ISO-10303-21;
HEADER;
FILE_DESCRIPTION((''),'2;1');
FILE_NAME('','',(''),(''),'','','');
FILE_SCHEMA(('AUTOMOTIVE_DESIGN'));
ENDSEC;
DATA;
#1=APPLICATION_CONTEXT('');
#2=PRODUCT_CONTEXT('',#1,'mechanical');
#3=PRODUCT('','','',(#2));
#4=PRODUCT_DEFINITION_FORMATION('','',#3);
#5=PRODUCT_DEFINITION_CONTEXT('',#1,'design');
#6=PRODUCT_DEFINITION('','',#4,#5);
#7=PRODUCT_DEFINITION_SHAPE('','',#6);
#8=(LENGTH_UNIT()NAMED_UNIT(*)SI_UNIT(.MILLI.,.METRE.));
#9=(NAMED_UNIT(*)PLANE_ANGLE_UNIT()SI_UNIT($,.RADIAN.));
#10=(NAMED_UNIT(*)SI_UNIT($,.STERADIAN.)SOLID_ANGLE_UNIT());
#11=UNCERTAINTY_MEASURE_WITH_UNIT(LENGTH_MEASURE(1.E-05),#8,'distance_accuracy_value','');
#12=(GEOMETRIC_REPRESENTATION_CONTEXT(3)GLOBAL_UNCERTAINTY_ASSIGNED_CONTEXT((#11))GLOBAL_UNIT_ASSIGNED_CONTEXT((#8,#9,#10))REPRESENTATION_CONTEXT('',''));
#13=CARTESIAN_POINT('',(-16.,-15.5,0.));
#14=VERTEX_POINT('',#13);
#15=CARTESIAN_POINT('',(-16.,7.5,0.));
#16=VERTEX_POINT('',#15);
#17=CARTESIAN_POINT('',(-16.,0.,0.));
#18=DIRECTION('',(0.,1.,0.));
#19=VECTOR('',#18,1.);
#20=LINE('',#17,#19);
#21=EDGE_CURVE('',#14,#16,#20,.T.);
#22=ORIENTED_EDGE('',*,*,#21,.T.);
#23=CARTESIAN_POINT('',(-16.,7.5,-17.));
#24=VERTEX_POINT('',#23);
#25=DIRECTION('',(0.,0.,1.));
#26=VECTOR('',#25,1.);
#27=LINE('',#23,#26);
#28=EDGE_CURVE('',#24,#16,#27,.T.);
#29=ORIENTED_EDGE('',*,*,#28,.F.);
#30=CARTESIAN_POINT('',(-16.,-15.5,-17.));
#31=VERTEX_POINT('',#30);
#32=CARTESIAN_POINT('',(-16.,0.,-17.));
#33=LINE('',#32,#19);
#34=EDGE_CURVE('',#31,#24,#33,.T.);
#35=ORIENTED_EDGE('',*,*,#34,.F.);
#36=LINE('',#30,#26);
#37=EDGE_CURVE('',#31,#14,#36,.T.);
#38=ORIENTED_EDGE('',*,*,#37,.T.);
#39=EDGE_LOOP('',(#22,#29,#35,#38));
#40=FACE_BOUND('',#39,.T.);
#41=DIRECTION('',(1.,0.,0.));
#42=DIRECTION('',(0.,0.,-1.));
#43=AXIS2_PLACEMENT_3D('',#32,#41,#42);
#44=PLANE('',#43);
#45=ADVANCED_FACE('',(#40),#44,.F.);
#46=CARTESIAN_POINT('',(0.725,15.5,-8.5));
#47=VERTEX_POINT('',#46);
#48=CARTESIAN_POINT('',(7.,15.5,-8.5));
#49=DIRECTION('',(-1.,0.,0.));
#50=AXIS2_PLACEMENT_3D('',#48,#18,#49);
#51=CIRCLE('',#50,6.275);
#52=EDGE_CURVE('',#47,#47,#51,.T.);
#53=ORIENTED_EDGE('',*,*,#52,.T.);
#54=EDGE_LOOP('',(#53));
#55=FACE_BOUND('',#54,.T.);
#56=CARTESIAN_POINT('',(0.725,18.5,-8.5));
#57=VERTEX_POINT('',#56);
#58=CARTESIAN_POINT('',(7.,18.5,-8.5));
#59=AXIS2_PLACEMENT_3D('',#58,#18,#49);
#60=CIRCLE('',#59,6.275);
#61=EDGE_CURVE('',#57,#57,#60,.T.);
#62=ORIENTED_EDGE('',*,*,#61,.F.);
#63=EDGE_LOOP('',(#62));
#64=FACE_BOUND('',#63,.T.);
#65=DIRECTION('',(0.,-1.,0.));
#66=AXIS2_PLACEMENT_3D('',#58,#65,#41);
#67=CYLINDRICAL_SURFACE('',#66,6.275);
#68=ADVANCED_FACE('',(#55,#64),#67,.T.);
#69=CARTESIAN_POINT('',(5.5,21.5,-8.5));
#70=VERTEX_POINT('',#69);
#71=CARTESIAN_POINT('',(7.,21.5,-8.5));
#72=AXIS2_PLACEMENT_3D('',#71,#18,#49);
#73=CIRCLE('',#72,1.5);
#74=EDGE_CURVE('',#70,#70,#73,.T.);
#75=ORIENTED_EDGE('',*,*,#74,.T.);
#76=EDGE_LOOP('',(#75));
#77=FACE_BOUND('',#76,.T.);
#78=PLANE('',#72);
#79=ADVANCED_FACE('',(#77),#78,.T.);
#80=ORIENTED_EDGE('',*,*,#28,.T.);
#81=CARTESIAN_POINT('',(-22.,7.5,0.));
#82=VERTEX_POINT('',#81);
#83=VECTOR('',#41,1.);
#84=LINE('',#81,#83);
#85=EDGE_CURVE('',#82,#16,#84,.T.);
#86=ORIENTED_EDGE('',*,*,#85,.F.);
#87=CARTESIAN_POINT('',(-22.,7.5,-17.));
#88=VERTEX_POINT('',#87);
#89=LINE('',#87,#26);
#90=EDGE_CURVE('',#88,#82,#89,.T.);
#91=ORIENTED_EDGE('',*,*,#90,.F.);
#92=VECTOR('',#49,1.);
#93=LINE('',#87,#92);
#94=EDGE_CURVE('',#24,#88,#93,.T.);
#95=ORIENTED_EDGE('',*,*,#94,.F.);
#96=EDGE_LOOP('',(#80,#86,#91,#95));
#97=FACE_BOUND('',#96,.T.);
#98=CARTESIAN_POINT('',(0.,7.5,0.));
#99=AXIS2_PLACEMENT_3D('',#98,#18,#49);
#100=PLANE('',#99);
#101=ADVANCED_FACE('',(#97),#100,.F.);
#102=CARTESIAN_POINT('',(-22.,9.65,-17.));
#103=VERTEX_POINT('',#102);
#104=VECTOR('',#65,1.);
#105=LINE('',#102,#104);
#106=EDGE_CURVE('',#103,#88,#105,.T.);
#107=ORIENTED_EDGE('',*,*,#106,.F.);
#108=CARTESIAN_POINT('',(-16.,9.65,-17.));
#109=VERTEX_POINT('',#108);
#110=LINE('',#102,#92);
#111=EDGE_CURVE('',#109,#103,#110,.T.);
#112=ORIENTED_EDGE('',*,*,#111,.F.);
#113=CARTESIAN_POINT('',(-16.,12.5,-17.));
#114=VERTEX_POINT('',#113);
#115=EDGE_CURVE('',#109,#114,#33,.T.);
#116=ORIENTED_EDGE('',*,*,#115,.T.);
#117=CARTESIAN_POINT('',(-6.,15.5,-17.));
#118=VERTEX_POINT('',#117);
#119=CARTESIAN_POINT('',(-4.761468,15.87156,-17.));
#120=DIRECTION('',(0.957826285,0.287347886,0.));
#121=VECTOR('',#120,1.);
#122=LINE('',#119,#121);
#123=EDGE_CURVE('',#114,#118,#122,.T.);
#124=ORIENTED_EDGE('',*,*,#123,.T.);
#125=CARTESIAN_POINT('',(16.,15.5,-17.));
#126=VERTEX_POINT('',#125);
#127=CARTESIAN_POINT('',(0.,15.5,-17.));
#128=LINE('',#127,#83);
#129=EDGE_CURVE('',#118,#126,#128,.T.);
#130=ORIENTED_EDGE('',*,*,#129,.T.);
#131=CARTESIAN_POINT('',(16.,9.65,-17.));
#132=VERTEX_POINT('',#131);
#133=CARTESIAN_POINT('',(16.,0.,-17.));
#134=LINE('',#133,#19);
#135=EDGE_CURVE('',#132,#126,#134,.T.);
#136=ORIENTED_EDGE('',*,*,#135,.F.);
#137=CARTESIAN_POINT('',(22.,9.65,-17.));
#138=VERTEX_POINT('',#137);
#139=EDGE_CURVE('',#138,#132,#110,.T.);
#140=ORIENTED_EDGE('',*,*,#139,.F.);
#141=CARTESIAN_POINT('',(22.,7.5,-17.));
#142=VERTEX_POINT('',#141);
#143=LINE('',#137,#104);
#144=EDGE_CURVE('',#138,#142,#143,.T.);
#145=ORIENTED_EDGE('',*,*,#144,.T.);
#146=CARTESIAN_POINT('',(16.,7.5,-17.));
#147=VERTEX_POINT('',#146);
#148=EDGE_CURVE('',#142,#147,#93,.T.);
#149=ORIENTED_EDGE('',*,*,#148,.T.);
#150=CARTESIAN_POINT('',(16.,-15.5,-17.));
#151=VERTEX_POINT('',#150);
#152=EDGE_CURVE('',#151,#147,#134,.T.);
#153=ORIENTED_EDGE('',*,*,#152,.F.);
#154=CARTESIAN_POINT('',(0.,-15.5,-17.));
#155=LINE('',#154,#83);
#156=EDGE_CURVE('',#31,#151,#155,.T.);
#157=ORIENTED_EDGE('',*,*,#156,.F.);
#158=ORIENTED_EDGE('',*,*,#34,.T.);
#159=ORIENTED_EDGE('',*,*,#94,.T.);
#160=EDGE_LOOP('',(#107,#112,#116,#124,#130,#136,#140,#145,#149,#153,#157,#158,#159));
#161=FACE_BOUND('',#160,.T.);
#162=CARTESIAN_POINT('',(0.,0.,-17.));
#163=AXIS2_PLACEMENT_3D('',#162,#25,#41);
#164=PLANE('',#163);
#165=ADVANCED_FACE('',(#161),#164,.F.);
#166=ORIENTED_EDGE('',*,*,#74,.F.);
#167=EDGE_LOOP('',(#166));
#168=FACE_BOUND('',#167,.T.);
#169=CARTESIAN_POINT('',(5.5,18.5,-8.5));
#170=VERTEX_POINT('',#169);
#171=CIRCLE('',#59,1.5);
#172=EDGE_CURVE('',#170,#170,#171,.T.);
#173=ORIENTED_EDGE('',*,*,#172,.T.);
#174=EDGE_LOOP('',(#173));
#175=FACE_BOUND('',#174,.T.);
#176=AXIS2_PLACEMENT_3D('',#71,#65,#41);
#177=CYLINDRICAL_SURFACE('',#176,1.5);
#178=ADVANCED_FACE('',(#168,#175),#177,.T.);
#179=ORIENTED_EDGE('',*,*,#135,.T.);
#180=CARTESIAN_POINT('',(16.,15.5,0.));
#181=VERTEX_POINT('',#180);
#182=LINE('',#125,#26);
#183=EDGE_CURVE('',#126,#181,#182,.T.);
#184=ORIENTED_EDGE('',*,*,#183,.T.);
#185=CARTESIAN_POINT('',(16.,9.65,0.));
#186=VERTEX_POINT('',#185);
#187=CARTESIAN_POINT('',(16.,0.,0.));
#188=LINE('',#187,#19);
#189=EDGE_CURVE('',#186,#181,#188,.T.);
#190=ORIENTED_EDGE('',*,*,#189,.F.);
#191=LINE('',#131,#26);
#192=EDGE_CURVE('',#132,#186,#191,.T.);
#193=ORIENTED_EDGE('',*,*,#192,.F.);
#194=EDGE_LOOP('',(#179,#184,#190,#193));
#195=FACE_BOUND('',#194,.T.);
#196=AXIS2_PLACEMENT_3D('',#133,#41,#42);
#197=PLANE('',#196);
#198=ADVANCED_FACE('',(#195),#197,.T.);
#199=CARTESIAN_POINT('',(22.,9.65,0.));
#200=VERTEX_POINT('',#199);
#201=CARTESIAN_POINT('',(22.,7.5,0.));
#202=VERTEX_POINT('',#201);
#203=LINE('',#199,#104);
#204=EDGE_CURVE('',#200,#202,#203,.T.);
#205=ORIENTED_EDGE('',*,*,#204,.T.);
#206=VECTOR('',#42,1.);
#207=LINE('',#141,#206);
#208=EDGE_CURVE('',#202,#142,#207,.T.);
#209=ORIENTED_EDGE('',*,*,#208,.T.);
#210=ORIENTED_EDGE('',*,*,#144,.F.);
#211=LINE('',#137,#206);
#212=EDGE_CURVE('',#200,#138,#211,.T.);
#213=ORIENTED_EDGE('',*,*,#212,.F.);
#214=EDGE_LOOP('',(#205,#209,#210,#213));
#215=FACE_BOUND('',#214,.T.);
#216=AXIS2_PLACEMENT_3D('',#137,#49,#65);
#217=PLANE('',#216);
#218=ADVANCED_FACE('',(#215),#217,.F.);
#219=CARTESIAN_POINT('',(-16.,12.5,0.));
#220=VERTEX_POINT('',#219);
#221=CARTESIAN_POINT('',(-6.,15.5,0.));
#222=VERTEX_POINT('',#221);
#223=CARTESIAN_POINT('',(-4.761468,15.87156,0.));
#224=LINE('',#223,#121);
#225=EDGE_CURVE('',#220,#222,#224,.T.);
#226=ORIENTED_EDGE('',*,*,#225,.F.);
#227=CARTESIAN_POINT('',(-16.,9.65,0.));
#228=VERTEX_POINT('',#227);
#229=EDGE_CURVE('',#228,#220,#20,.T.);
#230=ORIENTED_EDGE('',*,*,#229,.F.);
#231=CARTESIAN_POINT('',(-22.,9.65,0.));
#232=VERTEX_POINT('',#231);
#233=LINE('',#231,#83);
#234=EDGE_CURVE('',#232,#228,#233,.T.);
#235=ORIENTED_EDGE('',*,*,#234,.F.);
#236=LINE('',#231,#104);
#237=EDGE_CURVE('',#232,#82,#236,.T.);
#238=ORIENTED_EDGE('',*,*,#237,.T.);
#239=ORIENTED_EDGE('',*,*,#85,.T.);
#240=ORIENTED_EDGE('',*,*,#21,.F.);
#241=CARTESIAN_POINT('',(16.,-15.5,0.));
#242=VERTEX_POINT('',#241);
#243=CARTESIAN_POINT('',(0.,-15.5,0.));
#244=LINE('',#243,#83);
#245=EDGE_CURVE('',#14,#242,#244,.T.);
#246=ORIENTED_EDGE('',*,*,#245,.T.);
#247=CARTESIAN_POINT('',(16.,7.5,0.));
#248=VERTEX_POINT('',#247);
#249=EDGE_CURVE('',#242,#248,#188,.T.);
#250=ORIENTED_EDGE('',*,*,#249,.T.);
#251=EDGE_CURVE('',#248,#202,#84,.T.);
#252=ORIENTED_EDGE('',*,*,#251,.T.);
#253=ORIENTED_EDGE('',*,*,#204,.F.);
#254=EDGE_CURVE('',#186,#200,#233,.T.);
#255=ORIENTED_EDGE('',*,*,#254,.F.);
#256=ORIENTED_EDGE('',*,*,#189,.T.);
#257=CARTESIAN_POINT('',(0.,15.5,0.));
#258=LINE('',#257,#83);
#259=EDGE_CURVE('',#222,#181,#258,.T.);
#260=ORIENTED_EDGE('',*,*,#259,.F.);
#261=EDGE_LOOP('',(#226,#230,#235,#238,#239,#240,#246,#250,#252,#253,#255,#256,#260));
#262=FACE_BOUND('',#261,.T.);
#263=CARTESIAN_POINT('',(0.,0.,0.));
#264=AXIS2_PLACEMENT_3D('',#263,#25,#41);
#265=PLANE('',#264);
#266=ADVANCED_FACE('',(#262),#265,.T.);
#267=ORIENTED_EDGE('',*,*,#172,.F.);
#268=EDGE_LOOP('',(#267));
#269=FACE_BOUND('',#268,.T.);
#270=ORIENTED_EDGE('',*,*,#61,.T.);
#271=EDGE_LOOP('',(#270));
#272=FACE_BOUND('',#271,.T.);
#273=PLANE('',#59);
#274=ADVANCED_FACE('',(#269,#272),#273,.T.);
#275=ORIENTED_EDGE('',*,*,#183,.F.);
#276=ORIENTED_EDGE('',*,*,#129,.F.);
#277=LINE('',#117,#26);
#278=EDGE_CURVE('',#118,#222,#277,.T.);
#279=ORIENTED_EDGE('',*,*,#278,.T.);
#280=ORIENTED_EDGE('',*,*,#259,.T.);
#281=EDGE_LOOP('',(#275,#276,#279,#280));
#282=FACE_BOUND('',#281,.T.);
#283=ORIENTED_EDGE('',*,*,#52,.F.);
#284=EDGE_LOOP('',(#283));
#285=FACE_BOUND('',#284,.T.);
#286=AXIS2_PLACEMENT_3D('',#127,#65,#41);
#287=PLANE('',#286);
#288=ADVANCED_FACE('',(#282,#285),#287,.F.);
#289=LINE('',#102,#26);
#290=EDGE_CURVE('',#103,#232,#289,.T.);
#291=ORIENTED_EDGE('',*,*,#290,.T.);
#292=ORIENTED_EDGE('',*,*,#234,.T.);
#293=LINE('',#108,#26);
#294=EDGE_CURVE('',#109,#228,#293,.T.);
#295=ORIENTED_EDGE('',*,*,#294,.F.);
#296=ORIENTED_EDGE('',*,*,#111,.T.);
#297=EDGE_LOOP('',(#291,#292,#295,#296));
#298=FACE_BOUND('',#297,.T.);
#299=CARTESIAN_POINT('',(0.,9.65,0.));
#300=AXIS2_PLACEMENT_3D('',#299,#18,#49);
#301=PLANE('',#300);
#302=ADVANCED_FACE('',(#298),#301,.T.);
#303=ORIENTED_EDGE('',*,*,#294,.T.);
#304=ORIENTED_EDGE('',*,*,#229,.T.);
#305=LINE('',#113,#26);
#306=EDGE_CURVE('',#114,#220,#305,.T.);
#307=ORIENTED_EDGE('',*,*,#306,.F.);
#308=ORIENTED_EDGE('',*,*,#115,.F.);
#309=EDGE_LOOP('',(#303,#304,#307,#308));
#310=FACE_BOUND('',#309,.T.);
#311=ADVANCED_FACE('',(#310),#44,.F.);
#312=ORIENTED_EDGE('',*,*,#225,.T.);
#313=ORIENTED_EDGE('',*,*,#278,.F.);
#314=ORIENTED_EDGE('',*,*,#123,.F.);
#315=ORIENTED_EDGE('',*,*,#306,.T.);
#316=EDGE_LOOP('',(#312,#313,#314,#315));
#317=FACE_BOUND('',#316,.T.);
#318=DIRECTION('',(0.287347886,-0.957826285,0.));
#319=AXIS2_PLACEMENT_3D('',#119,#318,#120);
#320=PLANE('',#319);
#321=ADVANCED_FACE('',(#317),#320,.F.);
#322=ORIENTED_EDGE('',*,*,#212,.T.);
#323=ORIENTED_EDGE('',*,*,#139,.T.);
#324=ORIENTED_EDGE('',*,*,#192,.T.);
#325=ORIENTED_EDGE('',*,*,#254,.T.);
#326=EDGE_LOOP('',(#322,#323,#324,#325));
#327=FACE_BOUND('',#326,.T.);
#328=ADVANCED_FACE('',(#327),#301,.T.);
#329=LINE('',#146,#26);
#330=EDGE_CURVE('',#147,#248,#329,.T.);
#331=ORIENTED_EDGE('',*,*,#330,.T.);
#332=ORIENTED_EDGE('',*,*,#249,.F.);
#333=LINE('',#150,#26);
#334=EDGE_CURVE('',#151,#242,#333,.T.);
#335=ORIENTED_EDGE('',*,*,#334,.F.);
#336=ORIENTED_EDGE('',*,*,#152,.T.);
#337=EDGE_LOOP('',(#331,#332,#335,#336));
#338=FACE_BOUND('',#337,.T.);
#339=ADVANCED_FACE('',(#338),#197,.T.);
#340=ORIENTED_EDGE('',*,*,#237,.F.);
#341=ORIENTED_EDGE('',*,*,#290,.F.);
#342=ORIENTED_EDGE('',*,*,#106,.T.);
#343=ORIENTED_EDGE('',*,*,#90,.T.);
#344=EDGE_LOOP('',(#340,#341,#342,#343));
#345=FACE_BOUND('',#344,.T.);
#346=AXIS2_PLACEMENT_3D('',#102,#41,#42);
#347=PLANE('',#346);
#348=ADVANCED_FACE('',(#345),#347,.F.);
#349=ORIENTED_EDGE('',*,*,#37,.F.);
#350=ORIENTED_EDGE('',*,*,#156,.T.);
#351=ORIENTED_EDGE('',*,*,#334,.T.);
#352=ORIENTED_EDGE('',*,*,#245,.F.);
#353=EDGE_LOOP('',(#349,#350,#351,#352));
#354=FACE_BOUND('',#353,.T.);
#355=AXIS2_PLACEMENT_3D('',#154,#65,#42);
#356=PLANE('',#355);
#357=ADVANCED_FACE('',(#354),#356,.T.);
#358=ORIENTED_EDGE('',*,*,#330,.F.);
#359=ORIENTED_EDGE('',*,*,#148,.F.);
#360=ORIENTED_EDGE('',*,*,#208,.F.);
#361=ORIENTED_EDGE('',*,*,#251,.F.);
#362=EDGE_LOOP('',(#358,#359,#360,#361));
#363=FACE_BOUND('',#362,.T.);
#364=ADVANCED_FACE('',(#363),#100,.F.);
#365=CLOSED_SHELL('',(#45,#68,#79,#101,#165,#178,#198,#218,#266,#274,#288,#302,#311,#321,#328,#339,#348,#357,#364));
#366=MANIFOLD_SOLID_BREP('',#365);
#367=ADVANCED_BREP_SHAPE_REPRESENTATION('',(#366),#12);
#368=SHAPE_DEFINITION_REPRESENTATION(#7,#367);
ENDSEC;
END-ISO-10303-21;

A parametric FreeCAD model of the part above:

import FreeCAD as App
import Part
import Sketcher
Q = App.Units.Quantity

doc = App.newDocument("Part")
body = doc.addObject("PartDesign::Body", "Body")

# Sketch on XY plane
sketch1 = body.newObject("Sketcher::SketchObject", "Sketch")
sketch1.AttachmentSupport = (doc.getObject("XY_Plane"), [""])
sketch1.MapMode = "FlatFace"
sketch1.addGeometry(Part.LineSegment(App.Vector(-6, 16, 0), App.Vector(-16, 12, 0)), False)
sketch1.addGeometry(Part.LineSegment(App.Vector(-16, 12, 0), App.Vector(-16, -16, 0)), False)
sketch1.addGeometry(Part.LineSegment(App.Vector(-16, -16, 0), App.Vector(16, -16, 0)), False)
sketch1.addGeometry(Part.LineSegment(App.Vector(16, -16, 0), App.Vector(16, 16, 0)), False)
sketch1.addGeometry(Part.LineSegment(App.Vector(16, 16, 0), App.Vector(-6, 16, 0)), False)
sketch1.addConstraint(Sketcher.Constraint("Coincident", 0, 2, 1, 1))
sketch1.addConstraint(Sketcher.Constraint("Coincident", 1, 2, 2, 1))
sketch1.addConstraint(Sketcher.Constraint("Coincident", 2, 2, 3, 1))
sketch1.addConstraint(Sketcher.Constraint("Coincident", 3, 2, 4, 1))
sketch1.addConstraint(Sketcher.Constraint("Coincident", 4, 2, 0, 1))
sketch1.addConstraint(Sketcher.Constraint("Vertical", 1))
sketch1.addConstraint(Sketcher.Constraint("Horizontal", 2))
sketch1.addConstraint(Sketcher.Constraint("Vertical", 3))
sketch1.addConstraint(Sketcher.Constraint("Horizontal", 4))
sketch1.addConstraint(Sketcher.Constraint("Symmetric", 1, 2, 3, 2, -1, 1))
sketch1.addConstraint(Sketcher.Constraint("DistanceX", 2, 1, 2, 2, Q("32 mm")))
sketch1.addConstraint(Sketcher.Constraint("DistanceX", 4, 2, 4, 1, Q("22 mm")))
sketch1.addConstraint(Sketcher.Constraint("DistanceY", 1, 2, 1, 1, Q("28 mm")))
sketch1.addConstraint(Sketcher.Constraint("DistanceY", 3, 1, 3, 2, Q("31 mm")))
pad1 = body.newObject("PartDesign::Pad", "Pad")
pad1.Profile = sketch1
pad1.Length = 17
pad1.Reversed = True

# Sketch on XZ plane
sketch2 = body.newObject("Sketcher::SketchObject", "Sketch001")
sketch2.AttachmentSupport = (doc.getObject("XZ_Plane"), [""])
sketch2.MapMode = "FlatFace"
sketch2.AttachmentOffset = App.Placement(App.Vector(0, 0, -7.5), App.Rotation())
sketch2.addGeometry(Part.LineSegment(App.Vector(-22, -17, 0), App.Vector(-22, 0, 0)), False)
sketch2.addGeometry(Part.LineSegment(App.Vector(-22, 0, 0), App.Vector(22, 0, 0)), False)
sketch2.addGeometry(Part.LineSegment(App.Vector(22, 0, 0), App.Vector(22, -17, 0)), False)
sketch2.addGeometry(Part.LineSegment(App.Vector(22, -17, 0), App.Vector(-22, -17, 0)), False)
sketch2.addConstraint(Sketcher.Constraint("Coincident", 0, 2, 1, 1))
sketch2.addConstraint(Sketcher.Constraint("Coincident", 1, 2, 2, 1))
sketch2.addConstraint(Sketcher.Constraint("Coincident", 2, 2, 3, 1))
sketch2.addConstraint(Sketcher.Constraint("Coincident", 3, 2, 0, 1))
sketch2.addConstraint(Sketcher.Constraint("Vertical", 0))
sketch2.addConstraint(Sketcher.Constraint("Horizontal", 1))
sketch2.addConstraint(Sketcher.Constraint("Vertical", 2))
sketch2.addConstraint(Sketcher.Constraint("Horizontal", 3))
sketch2.addConstraint(Sketcher.Constraint("Symmetric", 0, 2, 1, 2, -1, 1))
sketch2.addConstraint(Sketcher.Constraint("DistanceX", 1, 1, 1, 2, Q("44 mm")))
sketch2.addConstraint(Sketcher.Constraint("DistanceY", 0, 1, 0, 2, Q("17 mm")))
pad2 = body.newObject("PartDesign::Pad", "Pad001")
pad2.Profile = sketch2
pad2.Length = 2.15
pad2.Reversed = True

# Sketch on XZ plane
sketch3 = body.newObject("Sketcher::SketchObject", "Sketch002")
sketch3.AttachmentSupport = (doc.getObject("XZ_Plane"), [""])
sketch3.MapMode = "FlatFace"
sketch3.AttachmentOffset = App.Placement(App.Vector(0, 0, -15.5), App.Rotation())
sketch3.addGeometry(Part.Circle(App.Vector(7, -8, 0), App.Vector(0, 0, 1), 6), False)
sketch3.addConstraint(Sketcher.Constraint("Diameter", 0, Q("12.55 mm")))
sketch3.addConstraint(Sketcher.Constraint("DistanceX", -1, 1, 0, 3, Q("7 mm")))
sketch3.addConstraint(Sketcher.Constraint("DistanceY", 0, 3, -1, 1, Q("8.5 mm")))
pad3 = body.newObject("PartDesign::Pad", "Pad002")
pad3.Profile = sketch3
pad3.Length = 3
pad3.Reversed = True

# Sketch on XZ plane
sketch4 = body.newObject("Sketcher::SketchObject", "Sketch003")
sketch4.AttachmentSupport = (doc.getObject("XZ_Plane"), [""])
sketch4.MapMode = "FlatFace"
sketch4.AttachmentOffset = App.Placement(App.Vector(0, 0, -18.5), App.Rotation())
sketch4.addGeometry(Part.Circle(App.Vector(7, -8.5, 0), App.Vector(0, 0, 1), 1.5), False)
sketch4.addConstraint(Sketcher.Constraint("Diameter", 0, Q("3 mm")))
sketch4.addConstraint(Sketcher.Constraint("DistanceX", -1, 1, 0, 3, Q("7 mm")))
sketch4.addConstraint(Sketcher.Constraint("DistanceY", 0, 3, -1, 1, Q("8.5 mm")))
pad4 = body.newObject("PartDesign::Pad", "Pad003")
pad4.Profile = sketch4
pad4.Length = 3
pad4.Reversed = True

doc.recompute()
